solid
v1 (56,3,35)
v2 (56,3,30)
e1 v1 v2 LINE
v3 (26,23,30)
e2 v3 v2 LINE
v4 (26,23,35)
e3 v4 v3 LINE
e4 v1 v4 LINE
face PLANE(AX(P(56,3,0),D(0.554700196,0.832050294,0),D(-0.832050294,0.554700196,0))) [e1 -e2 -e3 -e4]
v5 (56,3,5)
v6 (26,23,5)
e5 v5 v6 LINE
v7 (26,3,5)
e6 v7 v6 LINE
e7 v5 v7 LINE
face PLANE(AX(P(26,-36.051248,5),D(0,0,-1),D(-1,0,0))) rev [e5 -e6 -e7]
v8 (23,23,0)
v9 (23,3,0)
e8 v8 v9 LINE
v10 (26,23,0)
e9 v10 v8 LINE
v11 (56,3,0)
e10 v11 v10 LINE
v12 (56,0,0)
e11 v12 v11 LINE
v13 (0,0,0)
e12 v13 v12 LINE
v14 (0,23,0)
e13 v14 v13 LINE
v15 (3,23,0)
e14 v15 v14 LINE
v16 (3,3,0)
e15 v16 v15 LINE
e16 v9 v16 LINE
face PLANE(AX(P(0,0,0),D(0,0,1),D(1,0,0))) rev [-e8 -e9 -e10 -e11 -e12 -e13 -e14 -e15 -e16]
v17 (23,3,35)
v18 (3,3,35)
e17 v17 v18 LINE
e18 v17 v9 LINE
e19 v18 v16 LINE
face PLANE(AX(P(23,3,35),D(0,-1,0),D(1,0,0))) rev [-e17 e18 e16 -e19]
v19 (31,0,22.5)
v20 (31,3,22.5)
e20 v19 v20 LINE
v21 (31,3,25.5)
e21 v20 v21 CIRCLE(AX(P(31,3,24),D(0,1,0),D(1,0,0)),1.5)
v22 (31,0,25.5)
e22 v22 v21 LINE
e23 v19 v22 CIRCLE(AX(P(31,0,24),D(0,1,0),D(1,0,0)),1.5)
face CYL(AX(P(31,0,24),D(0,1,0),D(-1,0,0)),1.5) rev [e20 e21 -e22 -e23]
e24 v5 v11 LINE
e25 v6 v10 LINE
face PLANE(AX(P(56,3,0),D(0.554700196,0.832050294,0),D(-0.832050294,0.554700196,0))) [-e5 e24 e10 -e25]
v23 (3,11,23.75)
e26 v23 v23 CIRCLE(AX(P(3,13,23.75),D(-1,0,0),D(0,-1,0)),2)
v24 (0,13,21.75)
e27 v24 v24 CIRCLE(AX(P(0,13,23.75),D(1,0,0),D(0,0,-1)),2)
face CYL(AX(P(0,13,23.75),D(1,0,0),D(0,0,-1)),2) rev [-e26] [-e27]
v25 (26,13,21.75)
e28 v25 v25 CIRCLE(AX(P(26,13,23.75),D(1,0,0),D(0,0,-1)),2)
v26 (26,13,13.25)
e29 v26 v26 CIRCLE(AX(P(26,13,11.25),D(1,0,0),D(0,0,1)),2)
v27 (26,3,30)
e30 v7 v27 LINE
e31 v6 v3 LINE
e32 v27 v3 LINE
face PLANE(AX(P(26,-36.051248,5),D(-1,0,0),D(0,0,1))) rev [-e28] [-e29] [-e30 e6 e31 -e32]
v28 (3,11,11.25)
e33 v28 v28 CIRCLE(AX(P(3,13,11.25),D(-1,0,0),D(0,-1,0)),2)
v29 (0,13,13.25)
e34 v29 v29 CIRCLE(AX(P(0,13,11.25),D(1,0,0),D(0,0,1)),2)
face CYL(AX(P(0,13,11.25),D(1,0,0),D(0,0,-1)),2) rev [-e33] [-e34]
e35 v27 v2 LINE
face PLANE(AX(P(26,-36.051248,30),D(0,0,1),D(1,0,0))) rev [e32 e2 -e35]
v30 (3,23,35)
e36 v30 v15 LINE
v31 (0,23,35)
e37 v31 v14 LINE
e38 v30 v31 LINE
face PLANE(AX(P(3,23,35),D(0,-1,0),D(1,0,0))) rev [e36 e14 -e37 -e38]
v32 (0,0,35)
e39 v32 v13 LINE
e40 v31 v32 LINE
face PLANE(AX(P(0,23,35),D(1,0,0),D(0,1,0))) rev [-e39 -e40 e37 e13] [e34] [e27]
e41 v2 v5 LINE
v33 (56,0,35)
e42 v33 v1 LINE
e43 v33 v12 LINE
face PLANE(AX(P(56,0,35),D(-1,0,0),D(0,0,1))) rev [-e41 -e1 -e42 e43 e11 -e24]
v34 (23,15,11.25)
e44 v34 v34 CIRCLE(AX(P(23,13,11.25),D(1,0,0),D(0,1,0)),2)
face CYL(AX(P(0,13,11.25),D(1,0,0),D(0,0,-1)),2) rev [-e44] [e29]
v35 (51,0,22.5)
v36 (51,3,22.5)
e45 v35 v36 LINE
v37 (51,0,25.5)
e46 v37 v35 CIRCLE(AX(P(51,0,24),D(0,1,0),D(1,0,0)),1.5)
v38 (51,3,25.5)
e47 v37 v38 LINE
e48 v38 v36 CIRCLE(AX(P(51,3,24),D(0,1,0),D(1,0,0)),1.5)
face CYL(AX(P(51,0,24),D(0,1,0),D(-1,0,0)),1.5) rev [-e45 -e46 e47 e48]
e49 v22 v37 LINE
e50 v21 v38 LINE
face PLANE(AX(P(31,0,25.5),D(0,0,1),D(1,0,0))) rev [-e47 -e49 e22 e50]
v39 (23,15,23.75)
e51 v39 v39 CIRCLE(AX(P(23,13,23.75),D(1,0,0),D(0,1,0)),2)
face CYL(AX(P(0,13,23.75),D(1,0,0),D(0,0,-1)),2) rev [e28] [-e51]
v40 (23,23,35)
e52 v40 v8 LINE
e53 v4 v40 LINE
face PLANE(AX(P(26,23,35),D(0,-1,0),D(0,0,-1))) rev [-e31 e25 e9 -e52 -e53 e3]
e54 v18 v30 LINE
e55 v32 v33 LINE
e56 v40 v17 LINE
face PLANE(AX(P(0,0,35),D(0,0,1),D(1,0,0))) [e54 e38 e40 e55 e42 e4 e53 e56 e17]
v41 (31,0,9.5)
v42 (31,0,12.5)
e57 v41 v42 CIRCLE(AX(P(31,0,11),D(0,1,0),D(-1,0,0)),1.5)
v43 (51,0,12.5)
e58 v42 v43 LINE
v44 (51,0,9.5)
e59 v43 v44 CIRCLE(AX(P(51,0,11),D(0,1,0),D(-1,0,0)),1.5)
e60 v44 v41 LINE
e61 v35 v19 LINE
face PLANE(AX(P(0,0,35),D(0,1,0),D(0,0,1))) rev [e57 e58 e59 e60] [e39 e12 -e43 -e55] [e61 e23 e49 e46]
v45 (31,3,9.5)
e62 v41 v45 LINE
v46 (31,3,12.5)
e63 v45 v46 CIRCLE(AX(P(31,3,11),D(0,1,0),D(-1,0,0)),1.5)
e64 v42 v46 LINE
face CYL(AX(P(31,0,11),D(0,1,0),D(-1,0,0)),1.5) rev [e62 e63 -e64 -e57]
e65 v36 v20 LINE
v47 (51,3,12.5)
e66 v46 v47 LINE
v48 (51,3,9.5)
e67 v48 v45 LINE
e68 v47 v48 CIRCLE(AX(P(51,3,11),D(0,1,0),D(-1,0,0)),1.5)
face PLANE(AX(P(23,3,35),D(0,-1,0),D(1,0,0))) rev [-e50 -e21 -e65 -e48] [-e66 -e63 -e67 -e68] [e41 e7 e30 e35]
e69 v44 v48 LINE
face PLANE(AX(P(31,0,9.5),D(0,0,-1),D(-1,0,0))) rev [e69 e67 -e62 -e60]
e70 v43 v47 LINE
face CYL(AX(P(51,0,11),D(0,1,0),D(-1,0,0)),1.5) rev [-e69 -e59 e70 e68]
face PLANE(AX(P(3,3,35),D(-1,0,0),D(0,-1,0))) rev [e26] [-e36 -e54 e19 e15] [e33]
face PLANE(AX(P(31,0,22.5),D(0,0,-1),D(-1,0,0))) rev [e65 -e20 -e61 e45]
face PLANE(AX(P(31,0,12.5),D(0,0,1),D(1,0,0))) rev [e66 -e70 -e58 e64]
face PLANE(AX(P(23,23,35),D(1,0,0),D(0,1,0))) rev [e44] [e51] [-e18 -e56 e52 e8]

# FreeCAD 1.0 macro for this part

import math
import FreeCAD as App
import Part
import Sketcher
from FreeCAD import Vector


def add_polygon(sketch, points):
    """Adds a closed chain of lines whose ends are joined by coincident constraints."""
    first, n = sketch.GeometryCount, len(points)
    for a, b in zip(points, points[1:] + points[:1]):
        sketch.addGeometry(Part.LineSegment(App.Vector(*a, 0), App.Vector(*b, 0)), False)
    for i in range(n):
        sketch.addConstraint(Sketcher.Constraint("Coincident", first + i, 2, first + (i + 1) % n, 1))

doc = App.newDocument("Part")
body = doc.addObject("PartDesign::Body", "Body")

sketch1 = body.newObject("Sketcher::SketchObject", "Sketch")
sketch1.AttachmentSupport = (doc.getObject("XY_Plane"), [""])
sketch1.MapMode = "FlatFace"
add_polygon(sketch1, [(0, 23), (0, 0), (56, 0), (56, 3), (26, 3), (26, 23), (23, 23), (23, 3), (3, 3), (3, 23)])
sketch1.addConstraint(Sketcher.Constraint("Vertical", 0))
sketch1.addConstraint(Sketcher.Constraint("Horizontal", 1))
sketch1.addConstraint(Sketcher.Constraint("Vertical", 2))
sketch1.addConstraint(Sketcher.Constraint("Horizontal", 3))
sketch1.addConstraint(Sketcher.Constraint("Vertical", 4))
sketch1.addConstraint(Sketcher.Constraint("Horizontal", 5))
sketch1.addConstraint(Sketcher.Constraint("Vertical", 6))
sketch1.addConstraint(Sketcher.Constraint("Horizontal", 7))
sketch1.addConstraint(Sketcher.Constraint("Vertical", 8))
sketch1.addConstraint(Sketcher.Constraint("Horizontal", 9))
sketch1.addConstraint(Sketcher.Constraint("Coincident", 0, 2, -1, 1))
sketch1.addConstraint(Sketcher.Constraint("Horizontal", 3, 2, 6, 2))
sketch1.addConstraint(Sketcher.Constraint("Horizontal", 5, 2, 8, 2))
sketch1.addConstraint(Sketcher.Constraint("Equal", 5, 9))
sketch1.addConstraint(Sketcher.Constraint("Equal", 9, 2))
sketch1.addConstraint(Sketcher.Constraint("Equal", 7, 4))
sketch1.addConstraint(Sketcher.Constraint("DistanceX", 1, 1, 1, 2, 56.0))
sketch1.addConstraint(Sketcher.Constraint("DistanceX", 3, 2, 3, 1, 30.0))
sketch1.addConstraint(Sketcher.Constraint("DistanceX", 5, 2, 5, 1, 3.0))
pad1 = body.newObject("PartDesign::Pad", "Pad")
pad1.Profile = sketch1
pad1.Length = 35

sketch2 = body.newObject("Sketcher::SketchObject", "Sketch001")
sketch2.AttachmentSupport = (doc.getObject("XZ_Plane"), [""])
sketch2.MapMode = "FlatFace"
sketch2.AttachmentOffset = App.Placement(Vector(0, 0, -3), App.Rotation())
sketch2.addGeometry(Part.LineSegment(Vector(51, 9.5, 0), Vector(31, 9.5, 0)), False)
sketch2.addGeometry(Part.ArcOfCircle(Part.Circle(Vector(31, 11, 0), Vector(0, 0, 1), 1.5), math.radians(90), math.radians(270)), False)
sketch2.addGeometry(Part.LineSegment(Vector(31, 12.5, 0), Vector(51, 12.5, 0)), False)
sketch2.addGeometry(Part.ArcOfCircle(Part.Circle(Vector(51, 11, 0), Vector(0, 0, 1), 1.5), math.radians(-90), math.radians(90)), False)
sketch2.addGeometry(Part.LineSegment(Vector(31, 25.5, 0), Vector(51, 25.5, 0)), False)
sketch2.addGeometry(Part.ArcOfCircle(Part.Circle(Vector(51, 24, 0), Vector(0, 0, 1), 1.5), math.radians(-90), math.radians(90)), False)
sketch2.addGeometry(Part.LineSegment(Vector(51, 22.5, 0), Vector(31, 22.5, 0)), False)
sketch2.addGeometry(Part.ArcOfCircle(Part.Circle(Vector(31, 24, 0), Vector(0, 0, 1), 1.5), math.radians(90), math.radians(270)), False)
sketch2.addConstraint(Sketcher.Constraint("Tangent", 0, 2, 1, 2))
sketch2.addConstraint(Sketcher.Constraint("Tangent", 1, 1, 2, 1))
sketch2.addConstraint(Sketcher.Constraint("Tangent", 2, 2, 3, 2))
sketch2.addConstraint(Sketcher.Constraint("Tangent", 3, 1, 0, 1))
sketch2.addConstraint(Sketcher.Constraint("Tangent", 4, 2, 5, 2))
sketch2.addConstraint(Sketcher.Constraint("Tangent", 5, 1, 6, 1))
sketch2.addConstraint(Sketcher.Constraint("Tangent", 6, 2, 7, 2))
sketch2.addConstraint(Sketcher.Constraint("Tangent", 7, 1, 4, 1))
sketch2.addConstraint(Sketcher.Constraint("Horizontal", 0))
sketch2.addConstraint(Sketcher.Constraint("Horizontal", 2))
sketch2.addConstraint(Sketcher.Constraint("Horizontal", 4))
sketch2.addConstraint(Sketcher.Constraint("Horizontal", 6))
sketch2.addConstraint(Sketcher.Constraint("Equal", 3, 5))
sketch2.addConstraint(Sketcher.Constraint("Vertical", 3, 3, 5, 3))
sketch2.addConstraint(Sketcher.Constraint("Vertical", 1, 3, 7, 3))
sketch2.addConstraint(Sketcher.Constraint("Radius", 1, 1.5))
sketch2.addConstraint(Sketcher.Constraint("DistanceX", 0, 2, 0, 1, 20.0))
sketch2.addConstraint(Sketcher.Constraint("DistanceX", -1, 1, 1, 3, 31.0))
sketch2.addConstraint(Sketcher.Constraint("DistanceY", -1, 1, 1, 3, 11.0))
sketch2.addConstraint(Sketcher.Constraint("DistanceY", -1, 1, 5, 3, 24.0))
pocket1 = body.newObject("PartDesign::Pocket", "Pocket")
pocket1.Profile = sketch2
pocket1.Type = "ThroughAll"
pocket1.Midplane = True

sketch3 = body.newObject("Sketcher::SketchObject", "Sketch002")
sketch3.AttachmentSupport = (doc.getObject("XY_Plane"), [""])
sketch3.MapMode = "FlatFace"
sketch3.AttachmentOffset = App.Placement(Vector(0, 0, 35), App.Rotation())
add_polygon(sketch3, [(26, 23), (26, 3), (56, 3)])
sketch3.addConstraint(Sketcher.Constraint("Vertical", 0))
sketch3.addConstraint(Sketcher.Constraint("Horizontal", 1))
sketch3.addConstraint(Sketcher.Constraint("DistanceX", 1, 1, 1, 2, 30.0))
sketch3.addConstraint(Sketcher.Constraint("DistanceY", 0, 2, 0, 1, 20.0))
sketch3.addConstraint(Sketcher.Constraint("DistanceX", -1, 1, 0, 2, 26.0))
sketch3.addConstraint(Sketcher.Constraint("DistanceY", -1, 1, 0, 2, 3.0))
pad2 = body.newObject("PartDesign::Pad", "Pad001")
pad2.Profile = sketch3
pad2.Length = 35
pad2.Reversed = True

sketch4 = body.newObject("Sketcher::SketchObject", "Sketch003")
sketch4.AttachmentSupport = (doc.getObject("XZ_Plane"), [""])
sketch4.MapMode = "FlatFace"
sketch4.AttachmentOffset = App.Placement(Vector(0, 0, -23), App.Rotation())
add_polygon(sketch4, [(26, 5), (26, 30), (56, 30), (56, 5)])
sketch4.addConstraint(Sketcher.Constraint("Vertical", 0))
sketch4.addConstraint(Sketcher.Constraint("Horizontal", 1))
sketch4.addConstraint(Sketcher.Constraint("Vertical", 2))
sketch4.addConstraint(Sketcher.Constraint("Horizontal", 3))
sketch4.addConstraint(Sketcher.Constraint("DistanceX", 1, 1, 1, 2, 30.0))
sketch4.addConstraint(Sketcher.Constraint("DistanceY", 0, 1, 0, 2, 25.0))
sketch4.addConstraint(Sketcher.Constraint("DistanceX", -1, 1, 0, 2, 26.0))
sketch4.addConstraint(Sketcher.Constraint("DistanceY", -1, 1, 0, 2, 30.0))
pocket2 = body.newObject("PartDesign::Pocket", "Pocket001")
pocket2.Profile = sketch4
pocket2.Length = 20
pocket2.Reversed = True

sketch5 = body.newObject("Sketcher::SketchObject", "Sketch004")
sketch5.AttachmentSupport = (doc.getObject("YZ_Plane"), [""])
sketch5.MapMode = "FlatFace"
sketch5.AttachmentOffset = App.Placement(Vector(0, 0, 26), App.Rotation())
sketch5.addGeometry(Part.Circle(Vector(13, 23.8, 0), Vector(0, 0, 1), 2), False)
sketch5.addGeometry(Part.Circle(Vector(13, 11.2, 0), Vector(0, 0, 1), 2), False)
sketch5.addConstraint(Sketcher.Constraint("Equal", 0, 1))
sketch5.addConstraint(Sketcher.Constraint("Vertical", 0, 3, 1, 3))
sketch5.addConstraint(Sketcher.Constraint("Diameter", 0, 4.0))
sketch5.addConstraint(Sketcher.Constraint("DistanceX", -1, 1, 0, 3, 13.0))
sketch5.addConstraint(Sketcher.Constraint("DistanceY", 1, 3, 0, 3, 12.5))
sketch5.addConstraint(Sketcher.Constraint("DistanceY", -1, 1, 0, 3, 23.75))
pocket3 = body.newObject("PartDesign::Pocket", "Pocket002")
pocket3.Profile = sketch5
pocket3.Type = "ThroughAll"

doc.recompute()
